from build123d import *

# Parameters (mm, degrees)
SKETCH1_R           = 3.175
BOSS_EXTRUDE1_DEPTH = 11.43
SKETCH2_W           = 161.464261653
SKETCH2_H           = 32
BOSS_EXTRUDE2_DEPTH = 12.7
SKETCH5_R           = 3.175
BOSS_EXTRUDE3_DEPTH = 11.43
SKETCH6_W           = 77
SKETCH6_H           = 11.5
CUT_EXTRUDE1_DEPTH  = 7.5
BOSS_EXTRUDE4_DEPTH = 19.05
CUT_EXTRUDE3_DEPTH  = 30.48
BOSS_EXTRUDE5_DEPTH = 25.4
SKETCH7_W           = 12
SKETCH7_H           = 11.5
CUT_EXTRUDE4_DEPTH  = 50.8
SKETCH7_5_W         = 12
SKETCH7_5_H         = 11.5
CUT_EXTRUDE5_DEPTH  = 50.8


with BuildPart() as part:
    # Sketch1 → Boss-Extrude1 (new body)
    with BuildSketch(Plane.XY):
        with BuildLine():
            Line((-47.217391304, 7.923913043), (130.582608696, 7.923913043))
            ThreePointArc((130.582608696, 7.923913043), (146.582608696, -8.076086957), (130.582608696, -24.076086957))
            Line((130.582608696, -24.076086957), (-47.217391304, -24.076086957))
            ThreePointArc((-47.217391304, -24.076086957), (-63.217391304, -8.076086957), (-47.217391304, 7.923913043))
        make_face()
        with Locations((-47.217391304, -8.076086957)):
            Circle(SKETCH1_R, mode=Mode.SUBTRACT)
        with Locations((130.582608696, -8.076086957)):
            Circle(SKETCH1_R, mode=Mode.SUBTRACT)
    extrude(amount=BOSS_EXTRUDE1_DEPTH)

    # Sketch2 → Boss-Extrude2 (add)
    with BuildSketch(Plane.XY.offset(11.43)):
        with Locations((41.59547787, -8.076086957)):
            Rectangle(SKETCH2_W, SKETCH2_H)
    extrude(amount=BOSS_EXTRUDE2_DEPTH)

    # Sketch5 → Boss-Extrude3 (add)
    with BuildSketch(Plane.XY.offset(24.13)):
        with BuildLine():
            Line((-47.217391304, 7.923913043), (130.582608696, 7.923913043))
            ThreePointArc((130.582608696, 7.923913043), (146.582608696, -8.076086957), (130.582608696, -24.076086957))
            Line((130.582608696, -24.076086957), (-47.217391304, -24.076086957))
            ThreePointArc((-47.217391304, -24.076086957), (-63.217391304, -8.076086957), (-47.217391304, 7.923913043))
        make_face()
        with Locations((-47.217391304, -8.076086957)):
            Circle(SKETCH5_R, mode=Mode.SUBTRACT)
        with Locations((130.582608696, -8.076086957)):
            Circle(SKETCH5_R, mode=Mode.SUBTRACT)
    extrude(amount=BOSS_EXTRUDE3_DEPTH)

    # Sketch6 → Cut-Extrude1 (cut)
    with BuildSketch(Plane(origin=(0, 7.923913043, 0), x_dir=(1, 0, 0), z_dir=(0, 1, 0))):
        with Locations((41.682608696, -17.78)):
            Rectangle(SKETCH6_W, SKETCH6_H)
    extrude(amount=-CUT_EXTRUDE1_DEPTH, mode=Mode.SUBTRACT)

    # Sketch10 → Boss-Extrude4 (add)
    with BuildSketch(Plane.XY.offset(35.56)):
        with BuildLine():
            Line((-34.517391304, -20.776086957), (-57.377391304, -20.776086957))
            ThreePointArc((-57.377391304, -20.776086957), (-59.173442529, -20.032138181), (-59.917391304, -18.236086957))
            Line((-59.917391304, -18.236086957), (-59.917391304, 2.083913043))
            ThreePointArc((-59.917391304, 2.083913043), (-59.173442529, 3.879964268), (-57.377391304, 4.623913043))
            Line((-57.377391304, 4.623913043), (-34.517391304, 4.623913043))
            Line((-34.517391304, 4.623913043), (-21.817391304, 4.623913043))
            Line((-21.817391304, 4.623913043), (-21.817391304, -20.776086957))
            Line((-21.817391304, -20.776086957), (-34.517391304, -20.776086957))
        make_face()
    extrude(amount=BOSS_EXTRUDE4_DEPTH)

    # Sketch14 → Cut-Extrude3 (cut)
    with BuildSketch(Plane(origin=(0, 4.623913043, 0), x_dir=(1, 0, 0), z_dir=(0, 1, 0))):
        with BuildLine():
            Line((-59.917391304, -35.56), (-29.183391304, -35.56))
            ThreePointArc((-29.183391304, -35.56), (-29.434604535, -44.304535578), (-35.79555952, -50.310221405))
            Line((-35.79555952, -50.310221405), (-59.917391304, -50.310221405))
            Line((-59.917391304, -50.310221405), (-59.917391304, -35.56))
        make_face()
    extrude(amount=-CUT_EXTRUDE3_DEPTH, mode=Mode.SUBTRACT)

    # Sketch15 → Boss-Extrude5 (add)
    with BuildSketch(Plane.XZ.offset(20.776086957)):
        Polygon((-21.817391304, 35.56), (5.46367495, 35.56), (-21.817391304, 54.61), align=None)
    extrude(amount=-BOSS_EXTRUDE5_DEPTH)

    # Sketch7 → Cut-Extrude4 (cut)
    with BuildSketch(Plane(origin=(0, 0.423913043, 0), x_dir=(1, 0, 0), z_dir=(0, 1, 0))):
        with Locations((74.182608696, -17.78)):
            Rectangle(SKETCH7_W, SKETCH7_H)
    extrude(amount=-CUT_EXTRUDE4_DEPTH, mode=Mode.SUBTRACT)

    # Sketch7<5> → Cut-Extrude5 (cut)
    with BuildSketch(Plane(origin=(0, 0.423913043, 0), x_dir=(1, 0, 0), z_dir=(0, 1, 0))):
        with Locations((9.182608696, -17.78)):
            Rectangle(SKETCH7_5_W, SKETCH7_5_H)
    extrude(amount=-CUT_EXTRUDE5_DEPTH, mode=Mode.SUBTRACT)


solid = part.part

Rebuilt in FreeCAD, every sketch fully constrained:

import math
import FreeCAD as App
import Part
import Sketcher

V = App.Vector
Q = App.Units.Quantity


def add_polygon(sketch, points):
    """Adds a closed chain of lines whose ends are joined by coincident constraints."""
    first, n = sketch.GeometryCount, len(points)
    for a, b in zip(points, points[1:] + points[:1]):
        sketch.addGeometry(Part.LineSegment(App.Vector(*a, 0), App.Vector(*b, 0)), False)
    for i in range(n):
        sketch.addConstraint(Sketcher.Constraint("Coincident", first + i, 2, first + (i + 1) % n, 1))

doc = App.newDocument("Part")
body = doc.addObject("PartDesign::Body", "Body")

# Sketch on XY plane
sketch1 = doc.addObject("Sketcher::SketchObject", "Sketch")
body.addObject(sketch1)
sketch1.AttachmentSupport = (doc.XY_Plane, [""])
sketch1.MapMode = "FlatFace"
sketch1.addGeometry([
    Part.LineSegment(V(130.582609, 7.923913, 0), V(-47.217391, 7.923913, 0)),  # 0
    Part.ArcOfCircle(Part.Circle(V(-47.217391, -8.076087, 0), V(0, 0, 1), 16), math.radians(90), math.radians(270)),  # 1
    Part.LineSegment(V(-47.217391, -24.076087, 0), V(130.582609, -24.076087, 0)),  # 2
    Part.ArcOfCircle(Part.Circle(V(130.582609, -8.076087, 0), V(0, 0, 1), 16), math.radians(-90), math.radians(90)),  # 3
    Part.Circle(V(130.582609, -8.076087, 0), V(0, 0, 1), 3.175),  # 4
    Part.Circle(V(-47.217391, -8.076087, 0), V(0, 0, 1), 3.175),  # 5
], False)
sketch1.addConstraint([
    Sketcher.Constraint("Tangent", 0, 2, 1, 1),
    Sketcher.Constraint("Tangent", 1, 2, 2, 1),
    Sketcher.Constraint("Tangent", 2, 2, 3, 1),
    Sketcher.Constraint("Tangent", 3, 2, 0, 1),
    Sketcher.Constraint("Horizontal", 0),
    Sketcher.Constraint("Horizontal", 2),
    Sketcher.Constraint("Coincident", 4, 3, 3, 3),
    Sketcher.Constraint("Coincident", 5, 3, 1, 3),
    Sketcher.Constraint("Equal", 4, 5),
    Sketcher.Constraint("Diameter", 4, Q("0.25 in")),
    Sketcher.Constraint("DistanceX", 0, 2, 0, 1, Q("7 in")),
    Sketcher.Constraint("Radius", 1, 16.0),
    Sketcher.Constraint("DistanceX", 1, 3, -1, 1, 47.217391),
    Sketcher.Constraint("DistanceY", 1, 3, -1, 1, 8.076087),
])
pad1 = doc.addObject("PartDesign::Pad", "Pad")
body.addObject(pad1)
pad1.Profile = sketch1
pad1.Length = Q("0.45 in")

# Sketch on XY plane
sketch2 = doc.addObject("Sketcher::SketchObject", "Sketch001")
body.addObject(sketch2)
sketch2.AttachmentSupport = (doc.XY_Plane, [""])
sketch2.MapMode = "FlatFace"
sketch2.AttachmentOffset = App.Placement(V(0, 0, 0.45 * 25.4), App.Rotation())
add_polygon(sketch2, [(-39.136653, 7.923913), (-39.136653, -24.076087), (122.327609, -24.076087), (122.327609, 7.923913)])  # lines 0-3
sketch2.addConstraint([
    Sketcher.Constraint("Vertical", 0),
    Sketcher.Constraint("Horizontal", 1),
    Sketcher.Constraint("Vertical", 2),
    Sketcher.Constraint("Horizontal", 3),
    Sketcher.Constraint("DistanceY", 0, 2, 0, 1, 32.0),
    Sketcher.Constraint("DistanceX", 1, 1, 1, 2, 161.464262),
    Sketcher.Constraint("DistanceX", -1, 1, 1, 2, 122.327609),
    Sketcher.Constraint("DistanceY", 0, 2, -1, 1, 24.076087),
])
pad2 = doc.addObject("PartDesign::Pad", "Pad001")
body.addObject(pad2)
pad2.Profile = sketch2
pad2.Length = Q("0.5 in")

# Sketch on XY plane
sketch3 = doc.addObject("Sketcher::SketchObject", "Sketch002")
body.addObject(sketch3)
sketch3.AttachmentSupport = (doc.XY_Plane, [""])
sketch3.MapMode = "FlatFace"
sketch3.AttachmentOffset = App.Placement(V(0, 0, 0.95 * 25.4), App.Rotation())
sketch3.addGeometry([
    Part.LineSegment(V(130.582609, 7.923913, 0), V(-47.217391, 7.923913, 0)),  # 0
    Part.ArcOfCircle(Part.Circle(V(-47.217391, -8.076087, 0), V(0, 0, 1), 16), math.radians(90), math.radians(270)),  # 1
    Part.LineSegment(V(-47.217391, -24.076087, 0), V(130.582609, -24.076087, 0)),  # 2
    Part.ArcOfCircle(Part.Circle(V(130.582609, -8.076087, 0), V(0, 0, 1), 16), math.radians(-90), math.radians(90)),  # 3
    Part.Circle(V(130.582609, -8.076087, 0), V(0, 0, 1), 3.175),  # 4
    Part.Circle(V(-47.217391, -8.076087, 0), V(0, 0, 1), 3.175),  # 5
], False)
sketch3.addConstraint([
    Sketcher.Constraint("Tangent", 0, 2, 1, 1),
    Sketcher.Constraint("Tangent", 1, 2, 2, 1),
    Sketcher.Constraint("Tangent", 2, 2, 3, 1),
    Sketcher.Constraint("Tangent", 3, 2, 0, 1),
    Sketcher.Constraint("Horizontal", 0),
    Sketcher.Constraint("Horizontal", 2),
    Sketcher.Constraint("Coincident", 4, 3, 3, 3),
    Sketcher.Constraint("Coincident", 5, 3, 1, 3),
    Sketcher.Constraint("Equal", 4, 5),
    Sketcher.Constraint("Diameter", 4, Q("0.25 in")),
    Sketcher.Constraint("DistanceX", 0, 2, 0, 1, Q("7 in")),
    Sketcher.Constraint("Radius", 1, 16.0),
    Sketcher.Constraint("DistanceX", 1, 3, -1, 1, 47.217391),
    Sketcher.Constraint("DistanceY", 1, 3, -1, 1, 8.076087),
])
pad3 = doc.addObject("PartDesign::Pad", "Pad002")
body.addObject(pad3)
pad3.Profile = sketch3
pad3.Length = Q("0.45 in")

# Sketch on XZ plane
sketch4 = doc.addObject("Sketcher::SketchObject", "Sketch003")
body.addObject(sketch4)
sketch4.AttachmentSupport = (doc.XZ_Plane, [""])
sketch4.MapMode = "FlatFace"
sketch4.AttachmentOffset = App.Placement(V(0, 0, -7.923913), App.Rotation())
add_polygon(sketch4, [(3.182609, 12.03), (3.182609, 23.53), (80.182609, 23.53), (80.182609, 12.03)])  # lines 0-3
sketch4.addConstraint([
    Sketcher.Constraint("Vertical", 0),
    Sketcher.Constraint("Horizontal", 1),
    Sketcher.Constraint("Vertical", 2),
    Sketcher.Constraint("Horizontal", 3),
    Sketcher.Constraint("DistanceX", 1, 1, 1, 2, 77.0),
    Sketcher.Constraint("DistanceY", 0, 1, 0, 2, 11.5),
    Sketcher.Constraint("DistanceY", -1, 1, 0, 2, 23.53),
    Sketcher.Constraint("DistanceX", -1, 1, 0, 2, 3.182609),
])
pocket1 = doc.addObject("PartDesign::Pocket", "Pocket")
body.addObject(pocket1)
pocket1.Profile = sketch4
pocket1.Length = 7.5
pocket1.Reversed = True

# Sketch on XY plane
sketch5 = doc.addObject("Sketcher::SketchObject", "Sketch004")
body.addObject(sketch5)
sketch5.AttachmentSupport = (doc.XY_Plane, [""])
sketch5.MapMode = "FlatFace"
sketch5.AttachmentOffset = App.Placement(V(0, 0, 1.4 * 25.4), App.Rotation())
sketch5.addGeometry([
    Part.ArcOfCircle(Part.Circle(V(-57.377391, -18.236087, 0), V(0, 0, 1), 2.54), math.radians(180), math.radians(270)),  # 0
    Part.LineSegment(V(-57.377391, -20.776087, 0), V(-21.817391, -20.776087, 0)),  # 1
    Part.LineSegment(V(-21.817391, -20.776087, 0), V(-21.817391, 4.623913, 0)),  # 2
    Part.LineSegment(V(-21.817391, 4.623913, 0), V(-57.377391, 4.623913, 0)),  # 3
    Part.ArcOfCircle(Part.Circle(V(-57.377391, 2.083913, 0), V(0, 0, 1), 2.54), math.radians(90), math.radians(180)),  # 4
    Part.LineSegment(V(-59.917391, 2.083913, 0), V(-59.917391, -18.236087, 0)),  # 5
], False)
sketch5.addConstraint([
    Sketcher.Constraint("Tangent", 0, 2, 1, 1),
    Sketcher.Constraint("Coincident", 1, 2, 2, 1),
    Sketcher.Constraint("Coincident", 2, 2, 3, 1),
    Sketcher.Constraint("Tangent", 3, 2, 4, 1),
    Sketcher.Constraint("Tangent", 4, 2, 5, 1),
    Sketcher.Constraint("Tangent", 5, 2, 0, 1),
    Sketcher.Constraint("Horizontal", 1),
    Sketcher.Constraint("Vertical", 2),
    Sketcher.Constraint("Horizontal", 3),
    Sketcher.Constraint("Vertical", 5),
    Sketcher.Constraint("Equal", 0, 4),
    Sketcher.Constraint("Radius", 0, Q("0.1 in")),
    Sketcher.Constraint("DistanceY", 2, 1, 2, 2, Q("1 in")),
    Sketcher.Constraint("DistanceX", 1, 1, 1, 2, Q("1.4 in")),
    Sketcher.Constraint("DistanceX", 0, 3, -1, 1, 57.377391),
    Sketcher.Constraint("DistanceY", 0, 3, -1, 1, 18.236087),
])
pad4 = doc.addObject("PartDesign::Pad", "Pad003")
body.addObject(pad4)
pad4.Profile = sketch5
pad4.Length = Q("0.75 in")

# Sketch on XZ plane
sketch6 = doc.addObject("Sketcher::SketchObject", "Sketch005")
body.addObject(sketch6)
sketch6.AttachmentSupport = (doc.XZ_Plane, [""])
sketch6.MapMode = "FlatFace"
sketch6.AttachmentOffset = App.Placement(V(0, 0, -4.623913), App.Rotation())
sketch6.addGeometry([
    Part.LineSegment(V(-29.183391, 35.56, 0), V(-59.917391, 35.56, 0)),
    Part.LineSegment(V(-59.917391, 35.56, 0), V(-59.917391, 50.310221, 0)),
    Part.LineSegment(V(-59.917391, 50.310221, 0), V(-35.79556, 50.310221, 0)),
    Part.ArcOfCircle(Part.Circle(V(-39.864586, 39.629027, 0), V(0, 0, 1), 11.43), math.radians(-20.854458), math.radians(69.145542)),
], False)
sketch6.addConstraint([
    Sketcher.Constraint("Coincident", 0, 2, 1, 1),
    Sketcher.Constraint("Coincident", 1, 2, 2, 1),
    Sketcher.Constraint("Coincident", 2, 2, 3, 2),
    Sketcher.Constraint("Coincident", 3, 1, 0, 1),
    Sketcher.Constraint("Horizontal", 0),
    Sketcher.Constraint("Vertical", 1),
    Sketcher.Constraint("Horizontal", 2),
    Sketcher.Constraint("Radius", 3, Q("0.45 in")),
    Sketcher.Constraint("DistanceX", 0, 2, 0, 1, Q("1.21 in")),
    Sketcher.Constraint("DistanceY", -1, 1, 0, 2, Q("1.4 in")),
    Sketcher.Constraint("DistanceX", 2, 1, 2, 2, 24.121832),
    Sketcher.Constraint("DistanceY", 1, 1, 1, 2, 14.750221),
    Sketcher.Constraint("DistanceX", 0, 2, -1, 1, 59.917391),
])
pocket2 = doc.addObject("PartDesign::Pocket", "Pocket001")
body.addObject(pocket2)
pocket2.Profile = sketch6
pocket2.Length = Q("1.2 in")
pocket2.Reversed = True

# Sketch on XZ plane
sketch7 = doc.addObject("Sketcher::SketchObject", "Sketch006")
body.addObject(sketch7)
sketch7.AttachmentSupport = (doc.XZ_Plane, [""])
sketch7.MapMode = "FlatFace"
sketch7.AttachmentOffset = App.Placement(V(0, 0, 20.776087), App.Rotation())
add_polygon(sketch7, [(-21.817391, 35.56), (5.463675, 35.56), (-21.817391, 54.61)])  # lines 0-2
sketch7.addConstraint([
    Sketcher.Constraint("Horizontal", 0),
    Sketcher.Constraint("Vertical", 2),
    Sketcher.Constraint("DistanceY", 2, 2, 2, 1, Q("0.75 in")),
    Sketcher.Constraint("DistanceY", -1, 1, 0, 2, Q("1.4 in")),
    Sketcher.Constraint("Distance", 1, Q("1.31 in")),
    Sketcher.Constraint("DistanceX", 1, 2, -1, 1, 21.817391),
])
pad5 = doc.addObject("PartDesign::Pad", "Pad004")
body.addObject(pad5)
pad5.Profile = sketch7
pad5.Length = Q("1 in")
pad5.Reversed = True

# Sketch on XZ plane
sketch8 = doc.addObject("Sketcher::SketchObject", "Sketch007")
body.addObject(sketch8)
sketch8.AttachmentSupport = (doc.XZ_Plane, [""])
sketch8.MapMode = "FlatFace"
sketch8.AttachmentOffset = App.Placement(V(0, 0, -0.423913), App.Rotation())
add_polygon(sketch8, [(68.182609, 12.03), (68.182609, 23.53), (80.182609, 23.53), (80.182609, 12.03)])  # lines 0-3
sketch8.addConstraint([
    Sketcher.Constraint("Vertical", 0),
    Sketcher.Constraint("Horizontal", 1),
    Sketcher.Constraint("Vertical", 2),
    Sketcher.Constraint("Horizontal", 3),
    Sketcher.Constraint("DistanceX", 1, 1, 1, 2, 12.0),
    Sketcher.Constraint("DistanceY", 0, 1, 0, 2, 11.5),
    Sketcher.Constraint("DistanceY", -1, 1, 0, 2, 23.53),
    Sketcher.Constraint("DistanceX", -1, 1, 0, 2, 68.182609),
])
pocket3 = doc.addObject("PartDesign::Pocket", "Pocket002")
body.addObject(pocket3)
pocket3.Profile = sketch8
pocket3.Length = Q("2 in")
pocket3.Reversed = True

# Sketch on XZ plane
sketch9 = doc.addObject("Sketcher::SketchObject", "Sketch008")
body.addObject(sketch9)
sketch9.AttachmentSupport = (doc.XZ_Plane, [""])
sketch9.MapMode = "FlatFace"
sketch9.AttachmentOffset = App.Placement(V(0, 0, -0.423913), App.Rotation())
add_polygon(sketch9, [(3.182609, 12.03), (3.182609, 23.53), (15.182609, 23.53), (15.182609, 12.03)])  # lines 0-3
sketch9.addConstraint([
    Sketcher.Constraint("Vertical", 0),
    Sketcher.Constraint("Horizontal", 1),
    Sketcher.Constraint("Vertical", 2),
    Sketcher.Constraint("Horizontal", 3),
    Sketcher.Constraint("DistanceX", 1, 1, 1, 2, 12.0),
    Sketcher.Constraint("DistanceY", 0, 1, 0, 2, 11.5),
    Sketcher.Constraint("DistanceY", -1, 1, 0, 2, 23.53),
    Sketcher.Constraint("DistanceX", -1, 1, 0, 2, 3.182609),
])
pocket4 = doc.addObject("PartDesign::Pocket", "Pocket003")
body.addObject(pocket4)
pocket4.Profile = sketch9
pocket4.Length = Q("2 in")
pocket4.Reversed = True

doc.recompute()
